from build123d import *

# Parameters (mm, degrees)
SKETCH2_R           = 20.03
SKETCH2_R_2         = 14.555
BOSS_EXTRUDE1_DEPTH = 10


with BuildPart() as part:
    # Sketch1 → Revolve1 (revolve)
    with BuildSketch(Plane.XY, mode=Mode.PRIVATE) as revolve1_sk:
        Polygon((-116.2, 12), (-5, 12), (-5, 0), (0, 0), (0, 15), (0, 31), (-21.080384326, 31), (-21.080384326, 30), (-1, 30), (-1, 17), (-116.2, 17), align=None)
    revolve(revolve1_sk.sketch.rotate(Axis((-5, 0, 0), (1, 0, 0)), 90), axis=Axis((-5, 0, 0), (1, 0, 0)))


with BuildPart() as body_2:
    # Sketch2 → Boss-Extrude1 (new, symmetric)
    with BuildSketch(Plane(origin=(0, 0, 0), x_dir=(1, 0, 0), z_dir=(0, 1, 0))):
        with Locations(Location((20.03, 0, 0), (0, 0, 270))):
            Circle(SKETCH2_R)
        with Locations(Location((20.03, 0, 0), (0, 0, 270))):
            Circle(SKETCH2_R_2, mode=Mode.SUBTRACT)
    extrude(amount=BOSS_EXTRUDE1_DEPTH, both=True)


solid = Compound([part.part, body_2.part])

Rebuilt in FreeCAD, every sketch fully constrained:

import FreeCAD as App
import Part
import Sketcher

doc = App.newDocument("Part")
params = doc.addObject("Spreadsheet::Sheet", "Params")
for row, (alias, value) in enumerate([
    ("sketch1_width", "5 mm"),
    ("sketch1_height", "12 mm"),
    ("sketch1_height2", "31 mm"),
    ("sketch1_height3", "1 mm"),
    ("sketch1_width2", "111.2 mm"),
    ("revolution_angle", "360 deg"),
    ("sketch2_diameter", "40.06 mm"),
    ("sketch2_diameter2", "29.11 mm"),
    ("pad1_length", "20 mm"),
], start=1):
    params.set(f"A{row}", alias)
    params.set(f"B{row}", "=" + value)
    params.setAlias(f"B{row}", alias)

body = doc.addObject("PartDesign::Body", "Body")

sketch1 = body.newObject("Sketcher::SketchObject", "Sketch")
sketch1.AttachmentSupport = (doc.getObject("XY_Plane"), [""])
sketch1.MapMode = "FlatFace"
sketch1.addGeometry([
    Part.LineSegment(App.Vector(-116.2, 12, 0), App.Vector(-5, 12, 0)),
    Part.LineSegment(App.Vector(-5, 12, 0), App.Vector(-5, 0, 0)),
    Part.LineSegment(App.Vector(-5, 0, 0), App.Vector(0, 0, 0)),
    Part.LineSegment(App.Vector(0, 0, 0), App.Vector(0, 31, 0)),
    Part.LineSegment(App.Vector(0, 31, 0), App.Vector(-21.080384, 31, 0)),
    Part.LineSegment(App.Vector(-21.080384, 31, 0), App.Vector(-21.080384, 30, 0)),
    Part.LineSegment(App.Vector(-21.080384, 30, 0), App.Vector(-1, 30, 0)),
    Part.LineSegment(App.Vector(-1, 30, 0), App.Vector(-1, 17, 0)),
    Part.LineSegment(App.Vector(-1, 17, 0), App.Vector(-116.2, 17, 0)),
    Part.LineSegment(App.Vector(-116.2, 17, 0), App.Vector(-116.2, 12, 0)),
], False)
sketch1.addConstraint([
    Sketcher.Constraint("Coincident", 0, 2, 1, 1),
    Sketcher.Constraint("Coincident", 1, 2, 2, 1),
    Sketcher.Constraint("Coincident", 2, 2, 3, 1),
    Sketcher.Constraint("Coincident", 3, 2, 4, 1),
    Sketcher.Constraint("Coincident", 4, 2, 5, 1),
    Sketcher.Constraint("Coincident", 5, 2, 6, 1),
    Sketcher.Constraint("Coincident", 6, 2, 7, 1),
    Sketcher.Constraint("Coincident", 7, 2, 8, 1),
    Sketcher.Constraint("Coincident", 8, 2, 9, 1),
    Sketcher.Constraint("Coincident", 9, 2, 0, 1),
    Sketcher.Constraint("Horizontal", 0),
    Sketcher.Constraint("Vertical", 1),
    Sketcher.Constraint("Horizontal", 2),
    Sketcher.Constraint("Vertical", 3),
    Sketcher.Constraint("Horizontal", 4),
    Sketcher.Constraint("Vertical", 5),
    Sketcher.Constraint("Horizontal", 6),
    Sketcher.Constraint("Vertical", 7),
    Sketcher.Constraint("Horizontal", 8),
    Sketcher.Constraint("Vertical", 9),
    Sketcher.Constraint("Coincident", 2, 2, -1, 1),
    Sketcher.Constraint("Equal", 2, 9),
    Sketcher.Constraint("DistanceX", 2, 1, 2, 2, 5.0),
    Sketcher.Constraint("DistanceY", 1, 2, 1, 1, 12.0),
    Sketcher.Constraint("DistanceY", 3, 1, 3, 2, 31.0),
    Sketcher.Constraint("DistanceY", 5, 2, 5, 1, 1.0),
    Sketcher.Constraint("DistanceX", 0, 1, 0, 2, 111.2),
    Sketcher.Constraint("DistanceX", 8, 2, 8, 1, 115.2),
    Sketcher.Constraint("DistanceX", 4, 2, 4, 1, 21.080384),
])
sketch1.setExpression("Constraints[22]", "Params.sketch1_width")
sketch1.setExpression("Constraints[23]", "Params.sketch1_height")
sketch1.setExpression("Constraints[24]", "Params.sketch1_height2")
sketch1.setExpression("Constraints[25]", "Params.sketch1_height3")
sketch1.setExpression("Constraints[26]", "Params.sketch1_width2")
revolution = body.newObject("PartDesign::Revolution", "Revolution")
revolution.Profile = sketch1
revolution.ReferenceAxis = (sketch1, ["H_Axis"])
revolution.setExpression("Angle", "Params.revolution_angle")
body2 = doc.addObject("PartDesign::Body", "Body001")

sketch2 = body2.newObject("Sketcher::SketchObject", "Sketch001")
sketch2.AttachmentSupport = (doc.getObject("XZ_Plane001"), [""])
sketch2.MapMode = "FlatFace"
sketch2.addGeometry([
    Part.Circle(App.Vector(20.03, 0, 0), App.Vector(0, 0, 1), 20.03),
    Part.Circle(App.Vector(20.03, 0, 0), App.Vector(0, 0, 1), 14.555),
], False)
sketch2.addConstraint([
    Sketcher.Constraint("Coincident", 1, 3, 0, 3),
    Sketcher.Constraint("PointOnObject", 0, 3, -1),
    Sketcher.Constraint("Diameter", 0, 40.06),
    Sketcher.Constraint("Diameter", 1, 29.11),
    Sketcher.Constraint("DistanceX", -1, 1, 0, 3, 20.03),
])
sketch2.setExpression("Constraints[2]", "Params.sketch2_diameter")
sketch2.setExpression("Constraints[3]", "Params.sketch2_diameter2")
pad1 = body2.newObject("PartDesign::Pad", "Pad")
pad1.Profile = sketch2
pad1.setExpression("Length", "Params.pad1_length")
pad1.Midplane = True

doc.recompute()
